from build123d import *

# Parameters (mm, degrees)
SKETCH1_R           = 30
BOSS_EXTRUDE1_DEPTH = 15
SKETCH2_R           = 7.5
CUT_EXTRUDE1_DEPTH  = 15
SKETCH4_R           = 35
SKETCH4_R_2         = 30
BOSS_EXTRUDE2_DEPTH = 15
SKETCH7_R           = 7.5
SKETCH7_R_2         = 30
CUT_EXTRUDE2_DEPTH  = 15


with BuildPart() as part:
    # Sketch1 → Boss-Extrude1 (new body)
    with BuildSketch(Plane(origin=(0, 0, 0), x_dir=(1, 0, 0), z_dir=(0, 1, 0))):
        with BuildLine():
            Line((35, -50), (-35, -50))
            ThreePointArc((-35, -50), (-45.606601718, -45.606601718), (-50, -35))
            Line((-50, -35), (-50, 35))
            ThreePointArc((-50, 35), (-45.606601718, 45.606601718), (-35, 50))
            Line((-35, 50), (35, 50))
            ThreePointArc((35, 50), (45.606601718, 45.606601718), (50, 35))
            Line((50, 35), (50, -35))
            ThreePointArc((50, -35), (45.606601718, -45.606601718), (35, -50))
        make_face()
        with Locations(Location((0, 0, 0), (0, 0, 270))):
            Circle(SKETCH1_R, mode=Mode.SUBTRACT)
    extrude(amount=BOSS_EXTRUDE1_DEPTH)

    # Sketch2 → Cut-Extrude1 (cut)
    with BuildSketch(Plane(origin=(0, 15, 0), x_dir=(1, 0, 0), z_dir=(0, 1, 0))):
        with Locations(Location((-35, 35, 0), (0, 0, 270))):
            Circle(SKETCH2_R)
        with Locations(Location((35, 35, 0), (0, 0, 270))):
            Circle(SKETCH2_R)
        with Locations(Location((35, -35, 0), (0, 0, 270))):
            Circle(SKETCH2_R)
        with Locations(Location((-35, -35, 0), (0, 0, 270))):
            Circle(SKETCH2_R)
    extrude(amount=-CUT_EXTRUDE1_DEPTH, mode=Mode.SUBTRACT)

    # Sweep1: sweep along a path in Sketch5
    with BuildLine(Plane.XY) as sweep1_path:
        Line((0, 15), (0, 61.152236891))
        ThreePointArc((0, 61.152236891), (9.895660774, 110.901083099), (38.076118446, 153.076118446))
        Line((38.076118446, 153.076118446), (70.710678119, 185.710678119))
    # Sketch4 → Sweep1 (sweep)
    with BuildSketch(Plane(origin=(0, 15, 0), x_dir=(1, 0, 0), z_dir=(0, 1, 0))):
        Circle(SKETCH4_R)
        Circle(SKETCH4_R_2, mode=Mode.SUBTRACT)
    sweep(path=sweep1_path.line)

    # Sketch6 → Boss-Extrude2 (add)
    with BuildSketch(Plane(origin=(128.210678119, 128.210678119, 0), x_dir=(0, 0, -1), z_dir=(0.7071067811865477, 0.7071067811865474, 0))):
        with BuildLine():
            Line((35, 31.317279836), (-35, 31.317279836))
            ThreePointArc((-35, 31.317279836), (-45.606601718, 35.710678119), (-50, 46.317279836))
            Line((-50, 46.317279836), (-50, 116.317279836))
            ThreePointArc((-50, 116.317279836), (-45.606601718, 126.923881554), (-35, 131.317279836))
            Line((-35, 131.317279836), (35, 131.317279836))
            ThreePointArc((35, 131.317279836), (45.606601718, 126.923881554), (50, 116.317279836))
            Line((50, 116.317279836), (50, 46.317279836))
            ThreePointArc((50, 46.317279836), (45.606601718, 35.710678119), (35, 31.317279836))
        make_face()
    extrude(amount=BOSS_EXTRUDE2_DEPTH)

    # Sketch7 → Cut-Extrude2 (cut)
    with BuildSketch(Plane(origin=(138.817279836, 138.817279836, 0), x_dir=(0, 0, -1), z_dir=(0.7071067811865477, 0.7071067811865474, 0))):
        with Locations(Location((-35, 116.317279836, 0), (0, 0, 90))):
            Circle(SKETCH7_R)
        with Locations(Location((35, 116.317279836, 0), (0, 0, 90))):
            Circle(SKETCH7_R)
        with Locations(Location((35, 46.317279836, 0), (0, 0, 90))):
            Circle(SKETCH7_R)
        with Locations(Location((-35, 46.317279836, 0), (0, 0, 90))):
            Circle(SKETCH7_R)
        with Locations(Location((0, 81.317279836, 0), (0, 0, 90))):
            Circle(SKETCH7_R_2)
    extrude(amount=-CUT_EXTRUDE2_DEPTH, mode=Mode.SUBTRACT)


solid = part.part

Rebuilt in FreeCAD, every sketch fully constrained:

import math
import FreeCAD as App
import Part
import Sketcher
from FreeCAD import Vector
Q = App.Units.Quantity

doc = App.newDocument("Part")
body = doc.addObject("PartDesign::Body", "Body")

sketch1 = body.newObject("Sketcher::SketchObject", "Sketch")
sketch1.AttachmentSupport = (doc.getObject("XZ_Plane"), [""])
sketch1.MapMode = "FlatFace"
sketch1.addGeometry([
    Part.LineSegment(Vector(-35, 50, 0), Vector(35, 50, 0)),
    Part.ArcOfCircle(Part.Circle(Vector(35, 35, 0), Vector(0, 0, 1), 15), math.radians(0), math.radians(90)),
    Part.LineSegment(Vector(50, 35, 0), Vector(50, -35, 0)),
    Part.ArcOfCircle(Part.Circle(Vector(35, -35, 0), Vector(0, 0, 1), 15), math.radians(-90), math.radians(0)),
    Part.LineSegment(Vector(35, -50, 0), Vector(-35, -50, 0)),
    Part.ArcOfCircle(Part.Circle(Vector(-35, -35, 0), Vector(0, 0, 1), 15), math.radians(180), math.radians(270)),
    Part.LineSegment(Vector(-50, -35, 0), Vector(-50, 35, 0)),
    Part.ArcOfCircle(Part.Circle(Vector(-35, 35, 0), Vector(0, 0, 1), 15), math.radians(90), math.radians(180)),
    Part.Circle(Vector(0, 0, 0), Vector(0, 0, 1), 30),
], False)
sketch1.addConstraint([
    Sketcher.Constraint("Tangent", 0, 2, 1, 2),
    Sketcher.Constraint("Tangent", 1, 1, 2, 1),
    Sketcher.Constraint("Tangent", 2, 2, 3, 2),
    Sketcher.Constraint("Tangent", 3, 1, 4, 1),
    Sketcher.Constraint("Tangent", 4, 2, 5, 2),
    Sketcher.Constraint("Tangent", 5, 1, 6, 1),
    Sketcher.Constraint("Tangent", 6, 2, 7, 2),
    Sketcher.Constraint("Tangent", 7, 1, 0, 1),
    Sketcher.Constraint("Horizontal", 0),
    Sketcher.Constraint("Vertical", 2),
    Sketcher.Constraint("Horizontal", 4),
    Sketcher.Constraint("Vertical", 6),
    Sketcher.Constraint("Coincident", 8, 3, -1, 1),
    Sketcher.Constraint("Equal", 1, 3),
    Sketcher.Constraint("Equal", 3, 5),
    Sketcher.Constraint("Equal", 5, 7),
    Sketcher.Constraint("Symmetric", 1, 3, 5, 3, -1, 1),
    Sketcher.Constraint("Equal", 4, 2),
    Sketcher.Constraint("Diameter", 8, Q("60 mm")),
    Sketcher.Constraint("Radius", 1, Q("15 mm")),
    Sketcher.Constraint("DistanceX", 0, 1, 0, 2, Q("70 mm")),
])
pad1 = body.newObject("PartDesign::Pad", "Pad")
pad1.Profile = sketch1
pad1.Length = 15
pad1.Reversed = True

sketch2 = body.newObject("Sketcher::SketchObject", "Sketch001")
sketch2.AttachmentSupport = (doc.getObject("XZ_Plane"), [""])
sketch2.MapMode = "FlatFace"
sketch2.AttachmentOffset = App.Placement(Vector(0, 0, -15), App.Rotation())
sketch2.addGeometry([
    Part.Circle(Vector(-35, -35, 0), Vector(0, 0, 1), 8),
    Part.Circle(Vector(35, -35, 0), Vector(0, 0, 1), 8),
    Part.Circle(Vector(35, 35, 0), Vector(0, 0, 1), 8),
    Part.Circle(Vector(-35, 35, 0), Vector(0, 0, 1), 8),
], False)
sketch2.addConstraint([
    Sketcher.Constraint("Equal", 0, 1),
    Sketcher.Constraint("Equal", 1, 2),
    Sketcher.Constraint("Equal", 2, 3),
    Sketcher.Constraint("Symmetric", 0, 3, 2, 3, -1, 1),
    Sketcher.Constraint("Symmetric", 1, 3, 3, 3, -1, 1),
    Sketcher.Constraint("Symmetric", 0, 3, 1, 3, -2),
    Sketcher.Constraint("Diameter", 0, Q("15 mm")),
    Sketcher.Constraint("DistanceX", 0, 3, -1, 1, Q("35 mm")),
    Sketcher.Constraint("DistanceY", 0, 3, -1, 1, Q("35 mm")),
])
pocket1 = body.newObject("PartDesign::Pocket", "Pocket")
pocket1.Profile = sketch2
pocket1.Length = 15
pocket1.Reversed = True

sketch3 = body.newObject("Sketcher::SketchObject", "Sketch002")
sketch3.AttachmentSupport = (doc.getObject("XZ_Plane"), [""])
sketch3.MapMode = "FlatFace"
sketch3.AttachmentOffset = App.Placement(Vector(0, 0, -15), App.Rotation())
sketch3.addGeometry([
    Part.Circle(Vector(0, 0, 0), Vector(0, 0, 1), 35),
    Part.Circle(Vector(0, 0, 0), Vector(0, 0, 1), 30),
], False)
sketch3.addConstraint([
    Sketcher.Constraint("Coincident", 0, 3, -1, 1),
    Sketcher.Constraint("Coincident", 1, 3, -1, 1),
    Sketcher.Constraint("Diameter", 0, Q("70 mm")),
    Sketcher.Constraint("Diameter", 1, Q("60 mm")),
])

sketch4 = body.newObject("Sketcher::SketchObject", "Sketch003")
sketch4.AttachmentSupport = (doc.getObject("XY_Plane"), [""])
sketch4.MapMode = "FlatFace"
sketch4.addGeometry([
    Part.LineSegment(Vector(0, 15, 0), Vector(0, 61, 0)),
    Part.ArcOfCircle(Part.Circle(Vector(130, 61, 0), Vector(0, 0, 1), 130), math.radians(135), math.radians(180)),
    Part.LineSegment(Vector(38, 153, 0), Vector(71, 186, 0)),
], False)
sketch4.addConstraint([
    Sketcher.Constraint("Tangent", 0, 2, 1, 2),
    Sketcher.Constraint("Tangent", 1, 1, 2, 1),
    Sketcher.Constraint("Vertical", 0),
    Sketcher.Constraint("PointOnObject", 0, 1, -2),
    Sketcher.Constraint("Radius", 1, Q("130 mm")),
    Sketcher.Constraint("Angle", 2, Q("45 deg")),
    Sketcher.Constraint("DistanceY", -1, 1, 0, 1, Q("15 mm")),
    Sketcher.Constraint("DistanceY", 0, 1, 0, 2, Q("46.152237 mm")),
    Sketcher.Constraint("DistanceX", -1, 1, 2, 2, Q("70.710678 mm")),
])
doc.recompute()

additivepipe = body.newObject("PartDesign::AdditivePipe", "AdditivePipe")
additivepipe.Profile = sketch3
additivepipe.Spine = (sketch4, ["Edge1", "Edge2", "Edge3"])

sketch5 = body.newObject("Sketcher::SketchObject", "Sketch004")
sketch5.Placement = App.Placement(Vector(128.210678, 128.210678, 0), App.Rotation(Vector(0, 0, -1), Vector(-0.707106781, 0.707106781, 0), Vector(0.707106781, 0.707106781, 0), "ZXY"))
sketch5.addGeometry([
    Part.LineSegment(Vector(-35, 31, 0), Vector(35, 31, 0)),
    Part.ArcOfCircle(Part.Circle(Vector(35, 46, 0), Vector(0, 0, 1), 15), math.radians(-90), math.radians(0)),
    Part.LineSegment(Vector(50, 46, 0), Vector(50, 116, 0)),
    Part.ArcOfCircle(Part.Circle(Vector(35, 116, 0), Vector(0, 0, 1), 15), math.radians(0), math.radians(90)),
    Part.LineSegment(Vector(35, 131, 0), Vector(-35, 131, 0)),
    Part.ArcOfCircle(Part.Circle(Vector(-35, 116, 0), Vector(0, 0, 1), 15), math.radians(90), math.radians(180)),
    Part.LineSegment(Vector(-50, 116, 0), Vector(-50, 46, 0)),
    Part.ArcOfCircle(Part.Circle(Vector(-35, 46, 0), Vector(0, 0, 1), 15), math.radians(-180), math.radians(-90)),
], False)
sketch5.addConstraint([
    Sketcher.Constraint("Tangent", 0, 2, 1, 1),
    Sketcher.Constraint("Tangent", 1, 2, 2, 1),
    Sketcher.Constraint("Tangent", 2, 2, 3, 1),
    Sketcher.Constraint("Tangent", 3, 2, 4, 1),
    Sketcher.Constraint("Tangent", 4, 2, 5, 1),
    Sketcher.Constraint("Tangent", 5, 2, 6, 1),
    Sketcher.Constraint("Tangent", 6, 2, 7, 1),
    Sketcher.Constraint("Tangent", 7, 2, 0, 1),
    Sketcher.Constraint("Horizontal", 0),
    Sketcher.Constraint("Vertical", 2),
    Sketcher.Constraint("Horizontal", 4),
    Sketcher.Constraint("Vertical", 6),
    Sketcher.Constraint("Equal", 1, 3),
    Sketcher.Constraint("Equal", 3, 5),
    Sketcher.Constraint("Equal", 5, 7),
    Sketcher.Constraint("Equal", 4, 2),
    Sketcher.Constraint("Radius", 1, Q("15 mm")),
    Sketcher.Constraint("DistanceX", 0, 1, 0, 2, Q("70 mm")),
    Sketcher.Constraint("DistanceX", -1, 1, 1, 3, Q("35 mm")),
    Sketcher.Constraint("DistanceY", -1, 1, 1, 3, Q("46.31728 mm")),
])
pad2 = body.newObject("PartDesign::Pad", "Pad001")
pad2.Profile = sketch5
pad2.Length = 15

sketch6 = body.newObject("Sketcher::SketchObject", "Sketch005")
sketch6.Placement = App.Placement(Vector(138.81728, 138.81728, 0), App.Rotation(Vector(0, 0, -1), Vector(-0.707106781, 0.707106781, 0), Vector(0.707106781, 0.707106781, 0), "ZXY"))
sketch6.addGeometry([
    Part.Circle(Vector(-35, 116, 0), Vector(0, 0, 1), 8),
    Part.Circle(Vector(35, 116, 0), Vector(0, 0, 1), 8),
    Part.Circle(Vector(35, 46, 0), Vector(0, 0, 1), 8),
    Part.Circle(Vector(-35, 46, 0), Vector(0, 0, 1), 8),
    Part.Circle(Vector(0, 81, 0), Vector(0, 0, 1), 30),
], False)
sketch6.addConstraint([
    Sketcher.Constraint("Equal", 0, 1),
    Sketcher.Constraint("Equal", 1, 2),
    Sketcher.Constraint("Equal", 2, 3),
    Sketcher.Constraint("Symmetric", 0, 3, 1, 3, -2),
    Sketcher.Constraint("Symmetric", 2, 3, 3, 3, -2),
    Sketcher.Constraint("PointOnObject", 4, 3, -2),
    Sketcher.Constraint("Vertical", 1, 3, 2, 3),
    Sketcher.Constraint("Diameter", 0, Q("15 mm")),
    Sketcher.Constraint("Diameter", 4, Q("60 mm")),
    Sketcher.Constraint("DistanceX", 0, 3, -1, 1, Q("35 mm")),
    Sketcher.Constraint("DistanceY", 2, 3, 1, 3, Q("70 mm")),
    Sketcher.Constraint("DistanceY", 2, 3, 4, 3, Q("35 mm")),
    Sketcher.Constraint("DistanceY", -1, 1, 0, 3, Q("116.31728 mm")),
])
pocket2 = body.newObject("PartDesign::Pocket", "Pocket001")
pocket2.Profile = sketch6
pocket2.Length = 15

doc.recompute()
